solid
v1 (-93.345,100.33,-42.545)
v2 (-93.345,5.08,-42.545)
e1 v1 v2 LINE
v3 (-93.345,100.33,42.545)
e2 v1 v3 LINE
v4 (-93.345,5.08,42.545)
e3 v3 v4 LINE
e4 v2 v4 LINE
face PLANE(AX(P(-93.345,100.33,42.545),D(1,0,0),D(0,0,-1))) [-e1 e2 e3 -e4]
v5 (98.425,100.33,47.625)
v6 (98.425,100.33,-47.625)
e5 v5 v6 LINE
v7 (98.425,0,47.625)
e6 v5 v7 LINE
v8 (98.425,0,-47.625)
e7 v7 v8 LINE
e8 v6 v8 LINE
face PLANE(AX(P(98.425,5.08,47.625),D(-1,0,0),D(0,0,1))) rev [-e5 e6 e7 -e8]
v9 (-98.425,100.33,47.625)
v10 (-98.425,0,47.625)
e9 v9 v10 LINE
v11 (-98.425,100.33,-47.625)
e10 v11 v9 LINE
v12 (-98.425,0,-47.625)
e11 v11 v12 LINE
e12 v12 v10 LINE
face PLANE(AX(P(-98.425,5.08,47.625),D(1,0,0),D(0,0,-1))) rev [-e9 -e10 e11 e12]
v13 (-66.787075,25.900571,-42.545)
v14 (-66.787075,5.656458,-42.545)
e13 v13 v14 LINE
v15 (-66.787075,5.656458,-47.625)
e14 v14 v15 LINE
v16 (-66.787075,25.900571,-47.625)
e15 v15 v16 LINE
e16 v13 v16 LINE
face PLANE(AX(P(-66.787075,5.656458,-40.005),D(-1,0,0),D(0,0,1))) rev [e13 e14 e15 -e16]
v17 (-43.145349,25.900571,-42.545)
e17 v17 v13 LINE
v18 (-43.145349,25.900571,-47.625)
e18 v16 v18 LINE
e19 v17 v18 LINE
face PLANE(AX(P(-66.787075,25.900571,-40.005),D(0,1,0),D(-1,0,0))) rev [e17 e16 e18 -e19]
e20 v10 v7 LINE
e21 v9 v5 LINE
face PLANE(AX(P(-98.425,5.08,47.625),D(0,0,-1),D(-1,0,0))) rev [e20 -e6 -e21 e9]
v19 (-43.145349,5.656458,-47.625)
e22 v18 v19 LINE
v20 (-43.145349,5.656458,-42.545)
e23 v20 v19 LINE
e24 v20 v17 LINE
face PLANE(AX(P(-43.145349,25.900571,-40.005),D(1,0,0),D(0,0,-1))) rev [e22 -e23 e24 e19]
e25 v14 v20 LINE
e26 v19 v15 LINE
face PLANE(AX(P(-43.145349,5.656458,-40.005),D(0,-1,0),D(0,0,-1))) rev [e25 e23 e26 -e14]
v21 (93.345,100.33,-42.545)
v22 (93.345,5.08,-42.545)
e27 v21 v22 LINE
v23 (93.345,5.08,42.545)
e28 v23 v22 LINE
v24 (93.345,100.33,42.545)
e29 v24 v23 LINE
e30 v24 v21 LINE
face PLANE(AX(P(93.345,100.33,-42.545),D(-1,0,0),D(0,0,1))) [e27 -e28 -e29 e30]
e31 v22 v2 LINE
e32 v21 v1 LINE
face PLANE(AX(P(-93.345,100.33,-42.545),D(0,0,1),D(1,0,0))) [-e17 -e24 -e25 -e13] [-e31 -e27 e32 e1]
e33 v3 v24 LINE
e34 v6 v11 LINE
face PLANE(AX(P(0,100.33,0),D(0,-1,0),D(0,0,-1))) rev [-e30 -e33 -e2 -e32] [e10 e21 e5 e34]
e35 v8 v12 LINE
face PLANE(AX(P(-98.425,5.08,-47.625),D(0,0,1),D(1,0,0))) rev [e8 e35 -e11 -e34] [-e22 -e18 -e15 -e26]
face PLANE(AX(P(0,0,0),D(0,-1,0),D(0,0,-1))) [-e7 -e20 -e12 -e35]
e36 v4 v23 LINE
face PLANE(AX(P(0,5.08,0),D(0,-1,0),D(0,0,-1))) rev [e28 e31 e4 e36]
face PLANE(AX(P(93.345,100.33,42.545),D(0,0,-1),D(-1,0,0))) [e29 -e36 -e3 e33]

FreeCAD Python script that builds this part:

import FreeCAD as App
import Part
import Sketcher
Q = App.Units.Quantity

doc = App.newDocument("Part")
body = doc.addObject("PartDesign::Body", "Body")

# Sketch on XZ plane
sketch1 = doc.addObject("Sketcher::SketchObject", "Sketch")
body.addObject(sketch1)
sketch1.AttachmentSupport = (doc.XZ_Plane, [""])
sketch1.MapMode = "FlatFace"
sketch1.addGeometry([
    Part.LineSegment(App.Vector(-98, -48, 0), App.Vector(-98, 48, 0)),
    Part.LineSegment(App.Vector(-98, 48, 0), App.Vector(98, 48, 0)),
    Part.LineSegment(App.Vector(98, 48, 0), App.Vector(98, -48, 0)),
    Part.LineSegment(App.Vector(98, -48, 0), App.Vector(-98, -48, 0)),
], False)
sketch1.addConstraint([
    Sketcher.Constraint("Coincident", 0, 2, 1, 1),
    Sketcher.Constraint("Coincident", 1, 2, 2, 1),
    Sketcher.Constraint("Coincident", 2, 2, 3, 1),
    Sketcher.Constraint("Coincident", 3, 2, 0, 1),
    Sketcher.Constraint("Vertical", 0),
    Sketcher.Constraint("Horizontal", 1),
    Sketcher.Constraint("Vertical", 2),
    Sketcher.Constraint("Horizontal", 3),
    Sketcher.Constraint("Symmetric", 0, 2, 2, 2, -1, 1),
    Sketcher.Constraint("DistanceX", 1, 1, 1, 2, Q("7.75 in")),
    Sketcher.Constraint("DistanceY", 0, 1, 0, 2, Q("3.75 in")),
])
pad1 = doc.addObject("PartDesign::Pad", "Pad")
body.addObject(pad1)
pad1.Profile = sketch1
pad1.Length = Q("0.2 in")
pad1.Reversed = True

# Sketch on XZ plane
sketch2 = doc.addObject("Sketcher::SketchObject", "Sketch001")
body.addObject(sketch2)
sketch2.AttachmentSupport = (doc.XZ_Plane, [""])
sketch2.MapMode = "FlatFace"
sketch2.AttachmentOffset = App.Placement(App.Vector(0, 0, -0.2 * 25.4), App.Rotation())
sketch2.addGeometry([
    Part.LineSegment(App.Vector(-98, -48, 0), App.Vector(-98, 48, 0)),  # 0
    Part.LineSegment(App.Vector(-98, 48, 0), App.Vector(98, 48, 0)),  # 1
    Part.LineSegment(App.Vector(98, 48, 0), App.Vector(98, -48, 0)),  # 2
    Part.LineSegment(App.Vector(98, -48, 0), App.Vector(-98, -48, 0)),  # 3
    Part.LineSegment(App.Vector(93, 43, 0), App.Vector(-93, 43, 0)),  # 4
    Part.LineSegment(App.Vector(-93, 43, 0), App.Vector(-93, -43, 0)),  # 5
    Part.LineSegment(App.Vector(-93, -43, 0), App.Vector(93, -43, 0)),  # 6
    Part.LineSegment(App.Vector(93, -43, 0), App.Vector(93, 43, 0)),  # 7
], False)
sketch2.addConstraint([
    Sketcher.Constraint("Coincident", 0, 2, 1, 1),
    Sketcher.Constraint("Coincident", 1, 2, 2, 1),
    Sketcher.Constraint("Coincident", 2, 2, 3, 1),
    Sketcher.Constraint("Coincident", 3, 2, 0, 1),
    Sketcher.Constraint("Coincident", 4, 2, 5, 1),
    Sketcher.Constraint("Coincident", 5, 2, 6, 1),
    Sketcher.Constraint("Coincident", 6, 2, 7, 1),
    Sketcher.Constraint("Coincident", 7, 2, 4, 1),
    Sketcher.Constraint("Vertical", 0),
    Sketcher.Constraint("Horizontal", 1),
    Sketcher.Constraint("Vertical", 2),
    Sketcher.Constraint("Horizontal", 3),
    Sketcher.Constraint("Horizontal", 4),
    Sketcher.Constraint("Vertical", 5),
    Sketcher.Constraint("Horizontal", 6),
    Sketcher.Constraint("Vertical", 7),
    Sketcher.Constraint("Symmetric", 0, 2, 2, 2, -1, 1),
    Sketcher.Constraint("Symmetric", 4, 2, 6, 2, -1, 1),
    Sketcher.Constraint("DistanceX", 1, 1, 1, 2, Q("7.75 in")),
    Sketcher.Constraint("DistanceX", 4, 2, 4, 1, Q("7.35 in")),
    Sketcher.Constraint("DistanceY", 0, 1, 0, 2, Q("3.75 in")),
    Sketcher.Constraint("DistanceY", 5, 2, 5, 1, Q("3.35 in")),
])
pad2 = doc.addObject("PartDesign::Pad", "Pad001")
body.addObject(pad2)
pad2.Profile = sketch2
pad2.Length = Q("3.75 in")
pad2.Reversed = True

# Sketch on XY plane
sketch3 = doc.addObject("Sketcher::SketchObject", "Sketch002")
body.addObject(sketch3)
sketch3.AttachmentSupport = (doc.XY_Plane, [""])
sketch3.MapMode = "FlatFace"
sketch3.AttachmentOffset = App.Placement(App.Vector(0, 0, -1.875 * 25.4), App.Rotation())
sketch3.addGeometry([
    Part.LineSegment(App.Vector(-43, 26, 0), App.Vector(-43, 6, 0)),
    Part.LineSegment(App.Vector(-43, 6, 0), App.Vector(-67, 6, 0)),
    Part.LineSegment(App.Vector(-67, 6, 0), App.Vector(-67, 26, 0)),
    Part.LineSegment(App.Vector(-67, 26, 0), App.Vector(-43, 26, 0)),
], False)
sketch3.addConstraint([
    Sketcher.Constraint("Coincident", 0, 2, 1, 1),
    Sketcher.Constraint("Coincident", 1, 2, 2, 1),
    Sketcher.Constraint("Coincident", 2, 2, 3, 1),
    Sketcher.Constraint("Coincident", 3, 2, 0, 1),
    Sketcher.Constraint("Vertical", 0),
    Sketcher.Constraint("Horizontal", 1),
    Sketcher.Constraint("Vertical", 2),
    Sketcher.Constraint("Horizontal", 3),
    Sketcher.Constraint("DistanceX", 1, 2, 1, 1, 23.641726),
    Sketcher.Constraint("DistanceY", 0, 2, 0, 1, 20.244113),
    Sketcher.Constraint("DistanceX", 0, 2, -1, 1, 43.145349),
    Sketcher.Constraint("DistanceY", -1, 1, 2, 2, 25.900571),
])
pocket1 = doc.addObject("PartDesign::Pocket", "Pocket")
body.addObject(pocket1)
pocket1.Profile = sketch3
pocket1.Length = Q("0.3 in")
pocket1.Reversed = True

doc.recompute()
